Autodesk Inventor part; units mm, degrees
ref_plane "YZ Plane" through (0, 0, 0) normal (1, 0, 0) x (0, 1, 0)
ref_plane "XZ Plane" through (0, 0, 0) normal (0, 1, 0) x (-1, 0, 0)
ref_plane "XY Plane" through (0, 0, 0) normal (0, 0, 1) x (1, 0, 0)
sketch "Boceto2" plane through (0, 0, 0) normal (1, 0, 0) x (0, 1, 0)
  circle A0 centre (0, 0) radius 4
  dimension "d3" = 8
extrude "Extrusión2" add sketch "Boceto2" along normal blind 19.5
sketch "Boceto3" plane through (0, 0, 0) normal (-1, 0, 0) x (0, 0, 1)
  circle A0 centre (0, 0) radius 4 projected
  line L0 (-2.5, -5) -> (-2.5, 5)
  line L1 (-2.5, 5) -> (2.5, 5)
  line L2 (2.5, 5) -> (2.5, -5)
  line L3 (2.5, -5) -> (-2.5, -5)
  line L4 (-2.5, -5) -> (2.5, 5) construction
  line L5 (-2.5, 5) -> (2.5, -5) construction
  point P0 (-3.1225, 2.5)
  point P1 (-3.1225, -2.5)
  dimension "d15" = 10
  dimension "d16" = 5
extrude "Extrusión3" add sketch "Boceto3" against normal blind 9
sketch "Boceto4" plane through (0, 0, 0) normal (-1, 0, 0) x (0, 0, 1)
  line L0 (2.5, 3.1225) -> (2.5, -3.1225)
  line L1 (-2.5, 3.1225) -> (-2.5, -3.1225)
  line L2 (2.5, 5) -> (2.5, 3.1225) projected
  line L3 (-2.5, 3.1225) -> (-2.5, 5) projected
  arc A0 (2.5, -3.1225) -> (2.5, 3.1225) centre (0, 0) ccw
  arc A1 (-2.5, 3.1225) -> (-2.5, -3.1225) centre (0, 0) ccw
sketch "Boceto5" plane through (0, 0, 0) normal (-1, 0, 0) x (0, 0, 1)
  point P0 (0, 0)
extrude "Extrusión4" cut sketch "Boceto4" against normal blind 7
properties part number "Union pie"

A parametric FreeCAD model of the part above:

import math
import FreeCAD as App
import Part
import Sketcher

V = App.Vector

doc = App.newDocument("Part")
body = doc.addObject("PartDesign::Body", "Body")

sketch1 = body.newObject("Sketcher::SketchObject", "Sketch")
sketch1.AttachmentSupport = (doc.getObject("YZ_Plane"), [""])
sketch1.MapMode = "FlatFace"
sketch1.addGeometry(Part.Circle(V(0, 0, 0), V(0, 0, 1), 4), False)
sketch1.addConstraint([
    Sketcher.Constraint("Coincident", 0, 3, -1, 1),
    Sketcher.Constraint("Diameter", 0, 8.0),
])
pad1 = body.newObject("PartDesign::Pad", "Pad")
pad1.Profile = sketch1
pad1.Length = 19.5

sketch2 = body.newObject("Sketcher::SketchObject", "Sketch001")
sketch2.AttachmentSupport = (doc.getObject("YZ_Plane"), [""])
sketch2.MapMode = "FlatFace"
sketch2.addGeometry([
    Part.ArcOfCircle(Part.Circle(V(0, 0, 0), V(0, 0, 1), 4), math.radians(39), math.radians(141)),
    Part.LineSegment(V(3.1, 2.5, 0), V(5, 2.5, 0)),
    Part.LineSegment(V(5, 2.5, 0), V(5, -2.5, 0)),
    Part.LineSegment(V(5, -2.5, 0), V(3.1, -2.5, 0)),
    Part.ArcOfCircle(Part.Circle(V(0, 0, 0), V(0, 0, 1), 4), math.radians(-141), math.radians(-39)),
    Part.LineSegment(V(-3.1, -2.5, 0), V(-5, -2.5, 0)),
    Part.LineSegment(V(-5, -2.5, 0), V(-5, 2.5, 0)),
    Part.LineSegment(V(-5, 2.5, 0), V(-3.1, 2.5, 0)),
], False)
sketch2.addConstraint([
    Sketcher.Constraint("Coincident", 0, 1, 1, 1),
    Sketcher.Constraint("Coincident", 1, 2, 2, 1),
    Sketcher.Constraint("Coincident", 2, 2, 3, 1),
    Sketcher.Constraint("Coincident", 3, 2, 4, 2),
    Sketcher.Constraint("Coincident", 4, 1, 5, 1),
    Sketcher.Constraint("Coincident", 5, 2, 6, 1),
    Sketcher.Constraint("Coincident", 6, 2, 7, 1),
    Sketcher.Constraint("Coincident", 7, 2, 0, 2),
    Sketcher.Constraint("Horizontal", 1),
    Sketcher.Constraint("Vertical", 2),
    Sketcher.Constraint("Horizontal", 3),
    Sketcher.Constraint("Horizontal", 5),
    Sketcher.Constraint("Vertical", 6),
    Sketcher.Constraint("Horizontal", 7),
    Sketcher.Constraint("Coincident", 0, 3, -1, 1),
    Sketcher.Constraint("Coincident", 4, 3, -1, 1),
    Sketcher.Constraint("Equal", 0, 4),
    Sketcher.Constraint("Symmetric", 1, 2, 5, 2, -1, 1),
    Sketcher.Constraint("Horizontal", 3, 2, 4, 1),
    Sketcher.Constraint("Horizontal", 1, 2, 6, 2),
    Sketcher.Constraint("DistanceY", 2, 2, 2, 1, 5.0),
    Sketcher.Constraint("DistanceX", -1, 1, 1, 2, 5.0),
    Sketcher.Constraint("Radius", 0, 4.0),
])
pad2 = body.newObject("PartDesign::Pad", "Pad001")
pad2.Profile = sketch2
pad2.Length = 9

sketch3 = body.newObject("Sketcher::SketchObject", "Sketch002")
sketch3.AttachmentSupport = (doc.getObject("YZ_Plane"), [""])
sketch3.MapMode = "FlatFace"
sketch3.addGeometry([
    Part.ArcOfCircle(Part.Circle(V(0, 0, 0), V(0, 0, 1), 4), math.radians(39), math.radians(141)),
    Part.LineSegment(V(3.1, 2.5, 0), V(-3.1, 2.5, 0)),
    Part.LineSegment(V(-3.1, -2.5, 0), V(3.1, -2.5, 0)),
    Part.ArcOfCircle(Part.Circle(V(0, 0, 0), V(0, 0, 1), 4), math.radians(-141), math.radians(-39)),
], False)
sketch3.addConstraint([
    Sketcher.Constraint("Coincident", 0, 1, 1, 1),
    Sketcher.Constraint("Coincident", 1, 2, 0, 2),
    Sketcher.Constraint("Coincident", 2, 1, 3, 1),
    Sketcher.Constraint("Coincident", 3, 2, 2, 2),
    Sketcher.Constraint("Horizontal", 1),
    Sketcher.Constraint("Horizontal", 2),
    Sketcher.Constraint("Coincident", 0, 3, -1, 1),
    Sketcher.Constraint("Coincident", 3, 3, -1, 1),
    Sketcher.Constraint("Equal", 0, 3),
    Sketcher.Constraint("Vertical", 1, 2, 2, 1),
    Sketcher.Constraint("Radius", 0, 4.0),
    Sketcher.Constraint("DistanceY", 2, 1, 1, 2, 5.0),
])
pocket1 = body.newObject("PartDesign::Pocket", "Pocket")
pocket1.Profile = sketch3
pocket1.Length = 7
pocket1.Reversed = True

doc.recompute()
